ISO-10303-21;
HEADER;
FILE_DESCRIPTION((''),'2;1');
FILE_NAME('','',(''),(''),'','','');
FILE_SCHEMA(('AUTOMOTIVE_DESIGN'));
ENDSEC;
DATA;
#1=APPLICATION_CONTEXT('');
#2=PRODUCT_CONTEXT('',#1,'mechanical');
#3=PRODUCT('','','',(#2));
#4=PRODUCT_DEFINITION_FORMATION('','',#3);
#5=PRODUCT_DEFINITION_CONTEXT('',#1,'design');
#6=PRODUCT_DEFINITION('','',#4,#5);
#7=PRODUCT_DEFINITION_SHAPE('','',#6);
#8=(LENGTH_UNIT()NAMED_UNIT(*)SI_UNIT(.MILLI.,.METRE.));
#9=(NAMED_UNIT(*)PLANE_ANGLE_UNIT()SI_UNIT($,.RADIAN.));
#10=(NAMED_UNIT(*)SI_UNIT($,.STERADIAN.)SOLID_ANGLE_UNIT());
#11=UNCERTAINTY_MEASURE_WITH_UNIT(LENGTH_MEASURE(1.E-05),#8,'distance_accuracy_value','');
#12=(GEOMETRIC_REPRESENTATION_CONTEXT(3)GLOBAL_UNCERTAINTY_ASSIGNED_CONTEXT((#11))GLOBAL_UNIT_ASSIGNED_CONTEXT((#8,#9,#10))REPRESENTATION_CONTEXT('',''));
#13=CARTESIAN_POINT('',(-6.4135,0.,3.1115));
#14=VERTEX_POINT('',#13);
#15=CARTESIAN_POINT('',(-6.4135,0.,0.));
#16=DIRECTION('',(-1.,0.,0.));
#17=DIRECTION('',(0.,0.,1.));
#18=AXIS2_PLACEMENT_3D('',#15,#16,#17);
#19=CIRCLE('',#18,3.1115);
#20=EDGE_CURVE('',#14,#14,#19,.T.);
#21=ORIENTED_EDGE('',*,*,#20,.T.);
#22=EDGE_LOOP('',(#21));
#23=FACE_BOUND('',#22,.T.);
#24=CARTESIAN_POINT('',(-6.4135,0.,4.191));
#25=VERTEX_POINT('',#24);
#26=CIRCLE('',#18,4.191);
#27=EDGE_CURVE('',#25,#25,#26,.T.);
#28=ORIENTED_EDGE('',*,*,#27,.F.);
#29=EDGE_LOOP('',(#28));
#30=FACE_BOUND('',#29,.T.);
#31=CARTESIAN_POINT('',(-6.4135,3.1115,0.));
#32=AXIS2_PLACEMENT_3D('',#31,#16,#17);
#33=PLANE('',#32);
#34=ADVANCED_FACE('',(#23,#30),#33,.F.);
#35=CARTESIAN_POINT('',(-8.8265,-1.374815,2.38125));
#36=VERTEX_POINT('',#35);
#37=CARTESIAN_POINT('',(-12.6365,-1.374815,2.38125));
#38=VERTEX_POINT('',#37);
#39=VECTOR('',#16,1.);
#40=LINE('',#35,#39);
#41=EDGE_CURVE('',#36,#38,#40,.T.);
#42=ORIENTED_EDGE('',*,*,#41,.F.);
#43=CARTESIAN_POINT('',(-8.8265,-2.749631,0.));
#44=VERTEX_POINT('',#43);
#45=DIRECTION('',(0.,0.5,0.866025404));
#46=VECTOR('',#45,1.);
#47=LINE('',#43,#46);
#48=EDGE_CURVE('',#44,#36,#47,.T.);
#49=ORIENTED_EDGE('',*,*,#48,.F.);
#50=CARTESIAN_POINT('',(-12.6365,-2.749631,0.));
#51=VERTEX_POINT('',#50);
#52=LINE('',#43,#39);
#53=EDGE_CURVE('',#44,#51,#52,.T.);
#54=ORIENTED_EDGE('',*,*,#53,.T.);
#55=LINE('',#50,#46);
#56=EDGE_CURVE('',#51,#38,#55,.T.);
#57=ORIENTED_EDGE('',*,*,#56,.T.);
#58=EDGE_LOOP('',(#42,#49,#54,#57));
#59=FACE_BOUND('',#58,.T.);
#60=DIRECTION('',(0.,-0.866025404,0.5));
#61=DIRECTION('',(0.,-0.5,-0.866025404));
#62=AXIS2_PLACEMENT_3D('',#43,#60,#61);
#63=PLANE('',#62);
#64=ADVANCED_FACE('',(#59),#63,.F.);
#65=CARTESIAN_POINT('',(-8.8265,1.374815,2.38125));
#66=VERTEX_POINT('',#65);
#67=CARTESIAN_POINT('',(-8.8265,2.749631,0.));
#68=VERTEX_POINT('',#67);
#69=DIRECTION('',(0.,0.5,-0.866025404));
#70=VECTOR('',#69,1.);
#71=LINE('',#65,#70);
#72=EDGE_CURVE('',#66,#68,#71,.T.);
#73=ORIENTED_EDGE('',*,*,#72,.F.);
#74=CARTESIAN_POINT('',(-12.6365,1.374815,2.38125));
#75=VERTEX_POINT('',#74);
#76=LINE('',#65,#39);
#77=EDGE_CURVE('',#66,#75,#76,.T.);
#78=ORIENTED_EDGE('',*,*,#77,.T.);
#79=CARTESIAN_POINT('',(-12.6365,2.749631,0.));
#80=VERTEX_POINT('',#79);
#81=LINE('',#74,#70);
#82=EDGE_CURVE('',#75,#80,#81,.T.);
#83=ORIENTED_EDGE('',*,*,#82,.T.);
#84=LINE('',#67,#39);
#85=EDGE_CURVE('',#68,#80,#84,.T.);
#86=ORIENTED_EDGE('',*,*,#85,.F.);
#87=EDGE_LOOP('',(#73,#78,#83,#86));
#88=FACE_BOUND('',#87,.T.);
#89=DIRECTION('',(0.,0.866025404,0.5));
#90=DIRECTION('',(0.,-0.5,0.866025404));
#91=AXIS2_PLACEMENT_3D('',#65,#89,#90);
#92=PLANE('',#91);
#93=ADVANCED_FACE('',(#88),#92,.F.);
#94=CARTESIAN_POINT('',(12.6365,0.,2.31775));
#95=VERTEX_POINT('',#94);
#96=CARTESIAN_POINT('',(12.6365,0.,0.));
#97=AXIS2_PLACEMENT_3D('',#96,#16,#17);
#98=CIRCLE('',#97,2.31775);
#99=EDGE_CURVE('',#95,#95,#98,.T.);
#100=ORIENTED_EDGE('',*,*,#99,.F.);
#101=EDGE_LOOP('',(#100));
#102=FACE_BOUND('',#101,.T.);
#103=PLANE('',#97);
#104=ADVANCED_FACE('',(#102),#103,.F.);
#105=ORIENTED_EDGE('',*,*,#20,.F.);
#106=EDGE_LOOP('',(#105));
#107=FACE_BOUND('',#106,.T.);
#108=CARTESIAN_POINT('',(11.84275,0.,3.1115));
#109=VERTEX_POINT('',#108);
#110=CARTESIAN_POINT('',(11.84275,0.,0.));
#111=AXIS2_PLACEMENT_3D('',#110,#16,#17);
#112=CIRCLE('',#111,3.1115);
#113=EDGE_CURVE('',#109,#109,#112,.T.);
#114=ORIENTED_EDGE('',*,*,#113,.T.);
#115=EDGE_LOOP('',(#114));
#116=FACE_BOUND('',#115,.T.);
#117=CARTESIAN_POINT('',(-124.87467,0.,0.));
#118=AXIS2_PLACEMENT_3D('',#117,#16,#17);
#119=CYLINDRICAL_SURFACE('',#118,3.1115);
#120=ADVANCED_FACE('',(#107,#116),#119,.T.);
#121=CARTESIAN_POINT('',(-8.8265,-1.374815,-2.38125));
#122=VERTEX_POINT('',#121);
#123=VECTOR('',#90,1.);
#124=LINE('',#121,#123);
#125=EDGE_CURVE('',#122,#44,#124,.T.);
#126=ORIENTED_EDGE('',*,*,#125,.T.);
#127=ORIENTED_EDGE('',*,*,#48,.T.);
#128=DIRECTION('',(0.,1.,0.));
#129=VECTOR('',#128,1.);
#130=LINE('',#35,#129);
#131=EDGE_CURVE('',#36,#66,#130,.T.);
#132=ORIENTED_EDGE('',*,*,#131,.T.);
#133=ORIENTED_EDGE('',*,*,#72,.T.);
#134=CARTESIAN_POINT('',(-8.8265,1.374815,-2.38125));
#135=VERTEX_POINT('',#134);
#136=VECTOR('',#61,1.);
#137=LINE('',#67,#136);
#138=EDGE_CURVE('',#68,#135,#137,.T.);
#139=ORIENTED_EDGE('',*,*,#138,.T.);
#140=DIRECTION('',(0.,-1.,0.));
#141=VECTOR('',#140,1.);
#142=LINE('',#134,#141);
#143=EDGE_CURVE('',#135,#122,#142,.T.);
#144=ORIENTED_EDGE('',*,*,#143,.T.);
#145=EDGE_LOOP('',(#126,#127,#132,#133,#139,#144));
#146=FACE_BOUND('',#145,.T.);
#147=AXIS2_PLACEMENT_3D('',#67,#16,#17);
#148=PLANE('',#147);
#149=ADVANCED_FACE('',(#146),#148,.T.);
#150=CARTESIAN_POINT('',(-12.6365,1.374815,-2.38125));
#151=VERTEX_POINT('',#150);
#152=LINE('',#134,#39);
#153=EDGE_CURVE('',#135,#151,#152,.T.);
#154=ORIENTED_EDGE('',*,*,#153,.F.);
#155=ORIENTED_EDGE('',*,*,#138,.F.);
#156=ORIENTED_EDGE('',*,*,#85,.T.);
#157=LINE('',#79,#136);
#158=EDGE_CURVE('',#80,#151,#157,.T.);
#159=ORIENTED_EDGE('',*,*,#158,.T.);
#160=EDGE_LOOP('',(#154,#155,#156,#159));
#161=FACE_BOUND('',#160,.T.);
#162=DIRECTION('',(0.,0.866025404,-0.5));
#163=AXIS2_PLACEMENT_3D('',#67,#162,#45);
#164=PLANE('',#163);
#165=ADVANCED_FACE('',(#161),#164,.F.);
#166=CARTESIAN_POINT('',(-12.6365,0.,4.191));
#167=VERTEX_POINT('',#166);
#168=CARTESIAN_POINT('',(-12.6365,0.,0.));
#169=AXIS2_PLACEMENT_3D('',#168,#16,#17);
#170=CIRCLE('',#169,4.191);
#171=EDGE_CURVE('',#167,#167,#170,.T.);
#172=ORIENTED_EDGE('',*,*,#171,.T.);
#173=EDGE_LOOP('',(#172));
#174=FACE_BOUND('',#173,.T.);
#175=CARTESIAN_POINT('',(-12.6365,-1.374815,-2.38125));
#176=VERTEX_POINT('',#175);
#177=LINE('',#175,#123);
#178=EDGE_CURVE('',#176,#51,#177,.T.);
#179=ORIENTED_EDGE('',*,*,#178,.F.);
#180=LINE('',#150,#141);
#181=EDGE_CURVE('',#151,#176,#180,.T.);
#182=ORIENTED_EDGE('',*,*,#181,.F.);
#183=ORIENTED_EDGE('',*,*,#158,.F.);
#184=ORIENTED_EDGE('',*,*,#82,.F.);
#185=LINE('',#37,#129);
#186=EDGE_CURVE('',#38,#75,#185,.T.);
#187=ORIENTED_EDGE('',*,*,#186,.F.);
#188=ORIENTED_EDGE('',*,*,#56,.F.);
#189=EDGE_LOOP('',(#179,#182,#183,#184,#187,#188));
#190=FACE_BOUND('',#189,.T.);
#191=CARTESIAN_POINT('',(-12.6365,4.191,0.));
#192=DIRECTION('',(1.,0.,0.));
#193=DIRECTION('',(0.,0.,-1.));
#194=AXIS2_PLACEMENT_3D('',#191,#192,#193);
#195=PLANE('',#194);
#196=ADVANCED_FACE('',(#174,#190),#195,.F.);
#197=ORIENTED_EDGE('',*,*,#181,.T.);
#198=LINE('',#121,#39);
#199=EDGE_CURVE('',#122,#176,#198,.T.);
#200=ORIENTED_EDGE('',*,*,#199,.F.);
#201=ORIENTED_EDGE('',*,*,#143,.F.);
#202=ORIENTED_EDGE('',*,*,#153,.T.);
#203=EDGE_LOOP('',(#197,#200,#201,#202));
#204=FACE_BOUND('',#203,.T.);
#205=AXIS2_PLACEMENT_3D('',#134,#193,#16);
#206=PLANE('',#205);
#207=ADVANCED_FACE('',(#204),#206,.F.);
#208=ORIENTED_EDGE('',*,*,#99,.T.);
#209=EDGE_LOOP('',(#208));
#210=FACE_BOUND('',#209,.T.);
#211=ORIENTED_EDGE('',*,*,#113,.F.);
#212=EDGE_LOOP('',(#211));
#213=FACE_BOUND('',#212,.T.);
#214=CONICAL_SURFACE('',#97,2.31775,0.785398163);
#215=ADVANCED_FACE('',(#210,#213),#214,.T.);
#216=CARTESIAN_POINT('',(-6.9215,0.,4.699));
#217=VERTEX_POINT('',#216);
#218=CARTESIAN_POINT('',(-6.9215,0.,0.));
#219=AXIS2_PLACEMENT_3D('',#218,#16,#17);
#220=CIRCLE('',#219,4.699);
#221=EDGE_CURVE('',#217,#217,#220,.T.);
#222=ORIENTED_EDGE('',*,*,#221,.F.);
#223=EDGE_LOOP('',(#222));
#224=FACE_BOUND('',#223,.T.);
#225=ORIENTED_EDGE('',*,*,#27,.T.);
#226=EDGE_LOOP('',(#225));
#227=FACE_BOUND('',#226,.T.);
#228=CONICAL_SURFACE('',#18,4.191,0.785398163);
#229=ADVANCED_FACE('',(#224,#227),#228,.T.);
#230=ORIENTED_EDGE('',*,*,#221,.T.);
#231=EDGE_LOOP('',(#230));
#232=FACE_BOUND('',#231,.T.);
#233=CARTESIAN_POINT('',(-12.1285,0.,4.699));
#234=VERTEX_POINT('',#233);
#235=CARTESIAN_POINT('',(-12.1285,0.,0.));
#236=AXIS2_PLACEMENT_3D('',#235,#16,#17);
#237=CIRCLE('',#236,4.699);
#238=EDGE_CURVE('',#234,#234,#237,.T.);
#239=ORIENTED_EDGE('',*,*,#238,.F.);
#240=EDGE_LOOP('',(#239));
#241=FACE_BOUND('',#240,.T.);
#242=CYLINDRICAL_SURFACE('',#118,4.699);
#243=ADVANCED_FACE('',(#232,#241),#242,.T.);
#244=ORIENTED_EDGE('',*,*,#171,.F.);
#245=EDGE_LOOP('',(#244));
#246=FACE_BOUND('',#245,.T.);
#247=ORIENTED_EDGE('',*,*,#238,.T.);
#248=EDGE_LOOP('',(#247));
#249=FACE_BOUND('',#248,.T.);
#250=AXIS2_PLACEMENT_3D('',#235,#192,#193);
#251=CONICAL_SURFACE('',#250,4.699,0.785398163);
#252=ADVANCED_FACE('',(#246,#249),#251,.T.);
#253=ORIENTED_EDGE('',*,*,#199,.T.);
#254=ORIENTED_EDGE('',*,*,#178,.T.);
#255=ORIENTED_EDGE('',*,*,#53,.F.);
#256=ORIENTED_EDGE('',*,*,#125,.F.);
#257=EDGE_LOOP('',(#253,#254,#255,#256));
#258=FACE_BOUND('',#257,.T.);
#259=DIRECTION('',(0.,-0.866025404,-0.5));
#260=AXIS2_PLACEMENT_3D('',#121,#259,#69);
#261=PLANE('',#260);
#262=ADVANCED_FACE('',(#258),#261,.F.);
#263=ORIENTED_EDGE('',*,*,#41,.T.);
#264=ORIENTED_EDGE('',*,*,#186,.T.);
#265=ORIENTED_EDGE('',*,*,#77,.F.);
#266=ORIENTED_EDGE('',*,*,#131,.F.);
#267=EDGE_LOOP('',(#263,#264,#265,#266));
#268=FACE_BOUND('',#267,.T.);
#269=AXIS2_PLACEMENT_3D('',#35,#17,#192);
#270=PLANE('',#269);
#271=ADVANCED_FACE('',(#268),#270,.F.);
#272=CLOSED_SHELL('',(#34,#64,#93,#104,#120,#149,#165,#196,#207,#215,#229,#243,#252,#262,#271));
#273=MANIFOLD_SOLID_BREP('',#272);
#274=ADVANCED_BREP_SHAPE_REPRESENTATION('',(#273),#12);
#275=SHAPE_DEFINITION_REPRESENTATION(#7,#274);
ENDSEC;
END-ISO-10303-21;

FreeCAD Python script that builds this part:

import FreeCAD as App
import Part
import Sketcher

V = App.Vector
Q = App.Units.Quantity

doc = App.newDocument("Part")
params = doc.addObject("Spreadsheet::Sheet", "Params")
for row, (alias, value) in enumerate([
    ("sketch1_width", "0.71875 in"),
    ("sketch1_width2", "0.205 in"),
    ("sketch1_width3", "0.995 in"),
    ("sketch1_height", "0.165 in"),
    ("revolution_angle", "360 deg"),
    ("pocket1_length", "0.15 in"),
], start=1):
    params.set(f"A{row}", alias)
    params.set(f"B{row}", "=" + value)
    params.setAlias(f"B{row}", alias)

body = doc.addObject("PartDesign::Body", "Body")

# Sketch on XY plane
sketch1 = doc.addObject("Sketcher::SketchObject", "Sketch")
body.addObject(sketch1)
sketch1.AttachmentSupport = (doc.XY_Plane, [""])
sketch1.MapMode = "FlatFace"
sketch1.addGeometry(Part.LineSegment(V(12.6, 0, 0), V(12.6, 2.3, 0)), False)
sketch1.addGeometry(Part.LineSegment(V(12.6, 2.3, 0), V(11.8, 3.1, 0)), False)
sketch1.addGeometry(Part.LineSegment(V(11.8, 3.1, 0), V(-6.4, 3.1, 0)), False)
sketch1.addGeometry(Part.LineSegment(V(-6.4, 3.1, 0), V(-6.4, 4.2, 0)), False)
sketch1.addGeometry(Part.LineSegment(V(-6.4, 4.2, 0), V(-6.9, 4.7, 0)), False)
sketch1.addGeometry(Part.LineSegment(V(-6.9, 4.7, 0), V(-12.1, 4.7, 0)), False)
sketch1.addGeometry(Part.LineSegment(V(-12.1, 4.7, 0), V(-12.6, 4.2, 0)), False)
sketch1.addGeometry(Part.LineSegment(V(-12.6, 4.2, 0), V(-12.6, 0, 0)), False)
sketch1.addGeometry(Part.LineSegment(V(-12.6, 0, 0), V(12.6, 0, 0)), False)
sketch1.addConstraint(Sketcher.Constraint("Coincident", 0, 2, 1, 1))
sketch1.addConstraint(Sketcher.Constraint("Coincident", 1, 2, 2, 1))
sketch1.addConstraint(Sketcher.Constraint("Coincident", 2, 2, 3, 1))
sketch1.addConstraint(Sketcher.Constraint("Coincident", 3, 2, 4, 1))
sketch1.addConstraint(Sketcher.Constraint("Coincident", 4, 2, 5, 1))
sketch1.addConstraint(Sketcher.Constraint("Coincident", 5, 2, 6, 1))
sketch1.addConstraint(Sketcher.Constraint("Coincident", 6, 2, 7, 1))
sketch1.addConstraint(Sketcher.Constraint("Coincident", 7, 2, 8, 1))
sketch1.addConstraint(Sketcher.Constraint("Coincident", 8, 2, 0, 1))
sketch1.addConstraint(Sketcher.Constraint("Vertical", 0))
sketch1.addConstraint(Sketcher.Constraint("Horizontal", 2))
sketch1.addConstraint(Sketcher.Constraint("Vertical", 3))
sketch1.addConstraint(Sketcher.Constraint("Horizontal", 5))
sketch1.addConstraint(Sketcher.Constraint("Vertical", 7))
sketch1.addConstraint(Sketcher.Constraint("Horizontal", 8))
sketch1.addConstraint(Sketcher.Constraint("Symmetric", 7, 2, 8, 2, -1, 1))
sketch1.addConstraint(Sketcher.Constraint("Parallel", 1, 4))
sketch1.addConstraint(Sketcher.Constraint("Perpendicular", 4, 6))
sketch1.addConstraint(Sketcher.Constraint("Horizontal", 3, 2, 6, 2))
sketch1.addConstraint(Sketcher.Constraint("Equal", 4, 6))
sketch1.addConstraint(Sketcher.Constraint("DistanceX", 2, 2, 2, 1, Q("0.71875 in")))
sketch1.addConstraint(Sketcher.Constraint("DistanceX", 5, 2, 5, 1, Q("0.205 in")))
sketch1.addConstraint(Sketcher.Constraint("DistanceX", 8, 1, 8, 2, Q("0.995 in")))
sketch1.addConstraint(Sketcher.Constraint("DistanceY", 7, 2, 7, 1, Q("0.165 in")))
sketch1.addConstraint(Sketcher.Constraint("DistanceX", 2, 2, 0, 2, Q("0.75 in")))
sketch1.addConstraint(Sketcher.Constraint("DistanceY", 3, 1, 3, 2, Q("0.0425 in")))
sketch1.setExpression("Constraints[20]", "Params.sketch1_width")
sketch1.setExpression("Constraints[21]", "Params.sketch1_width2")
sketch1.setExpression("Constraints[22]", "Params.sketch1_width3")
sketch1.setExpression("Constraints[23]", "Params.sketch1_height")
revolution = doc.addObject("PartDesign::Revolution", "Revolution")
body.addObject(revolution)
revolution.Profile = sketch1
revolution.ReferenceAxis = (sketch1, ["H_Axis"])
revolution.setExpression("Angle", "Params.revolution_angle")

# Sketch on YZ plane
sketch2 = doc.addObject("Sketcher::SketchObject", "Sketch001")
body.addObject(sketch2)
sketch2.AttachmentSupport = (doc.YZ_Plane, [""])
sketch2.MapMode = "FlatFace"
sketch2.AttachmentOffset = App.Placement(V(0, 0, -0.4975 * 25.4), App.Rotation())
sketch2.addGeometry(Part.LineSegment(V(2.7, 0, 0), V(1.4, -2.4, 0)), False)
sketch2.addGeometry(Part.LineSegment(V(1.4, -2.4, 0), V(-1.4, -2.4, 0)), False)
sketch2.addGeometry(Part.LineSegment(V(-1.4, -2.4, 0), V(-2.7, 0, 0)), False)
sketch2.addGeometry(Part.LineSegment(V(-2.7, 0, 0), V(-1.4, 2.4, 0)), False)
sketch2.addGeometry(Part.LineSegment(V(-1.4, 2.4, 0), V(1.4, 2.4, 0)), False)
sketch2.addGeometry(Part.LineSegment(V(1.4, 2.4, 0), V(2.7, 0, 0)), False)
sketch2.addConstraint(Sketcher.Constraint("Coincident", 0, 2, 1, 1))
sketch2.addConstraint(Sketcher.Constraint("Coincident", 1, 2, 2, 1))
sketch2.addConstraint(Sketcher.Constraint("Coincident", 2, 2, 3, 1))
sketch2.addConstraint(Sketcher.Constraint("Coincident", 3, 2, 4, 1))
sketch2.addConstraint(Sketcher.Constraint("Coincident", 4, 2, 5, 1))
sketch2.addConstraint(Sketcher.Constraint("Coincident", 5, 2, 0, 1))
sketch2.addConstraint(Sketcher.Constraint("Horizontal", 1))
sketch2.addConstraint(Sketcher.Constraint("Horizontal", 4))
sketch2.addConstraint(Sketcher.Constraint("Symmetric", 0, 2, 3, 2, -1, 1))
sketch2.addConstraint(Sketcher.Constraint("Symmetric", 2, 2, 5, 2, -1, 1))
sketch2.addConstraint(Sketcher.Constraint("PointOnObject", 2, 2, -1))
sketch2.addConstraint(Sketcher.Constraint("Parallel", 2, 5))
sketch2.addConstraint(Sketcher.Constraint("Vertical", 1, 2, 3, 2))
sketch2.addConstraint(Sketcher.Constraint("Angle", 0, Q("-120 deg")))
sketch2.addConstraint(Sketcher.Constraint("DistanceY", 0, 2, -1, 1, Q("0.09375 in")))
sketch2.addConstraint(Sketcher.Constraint("DistanceX", 1, 2, 1, 1, 2.749631))
pocket1 = doc.addObject("PartDesign::Pocket", "Pocket")
body.addObject(pocket1)
pocket1.Profile = sketch2
pocket1.setExpression("Length", "Params.pocket1_length")
pocket1.Reversed = True

doc.recompute()
